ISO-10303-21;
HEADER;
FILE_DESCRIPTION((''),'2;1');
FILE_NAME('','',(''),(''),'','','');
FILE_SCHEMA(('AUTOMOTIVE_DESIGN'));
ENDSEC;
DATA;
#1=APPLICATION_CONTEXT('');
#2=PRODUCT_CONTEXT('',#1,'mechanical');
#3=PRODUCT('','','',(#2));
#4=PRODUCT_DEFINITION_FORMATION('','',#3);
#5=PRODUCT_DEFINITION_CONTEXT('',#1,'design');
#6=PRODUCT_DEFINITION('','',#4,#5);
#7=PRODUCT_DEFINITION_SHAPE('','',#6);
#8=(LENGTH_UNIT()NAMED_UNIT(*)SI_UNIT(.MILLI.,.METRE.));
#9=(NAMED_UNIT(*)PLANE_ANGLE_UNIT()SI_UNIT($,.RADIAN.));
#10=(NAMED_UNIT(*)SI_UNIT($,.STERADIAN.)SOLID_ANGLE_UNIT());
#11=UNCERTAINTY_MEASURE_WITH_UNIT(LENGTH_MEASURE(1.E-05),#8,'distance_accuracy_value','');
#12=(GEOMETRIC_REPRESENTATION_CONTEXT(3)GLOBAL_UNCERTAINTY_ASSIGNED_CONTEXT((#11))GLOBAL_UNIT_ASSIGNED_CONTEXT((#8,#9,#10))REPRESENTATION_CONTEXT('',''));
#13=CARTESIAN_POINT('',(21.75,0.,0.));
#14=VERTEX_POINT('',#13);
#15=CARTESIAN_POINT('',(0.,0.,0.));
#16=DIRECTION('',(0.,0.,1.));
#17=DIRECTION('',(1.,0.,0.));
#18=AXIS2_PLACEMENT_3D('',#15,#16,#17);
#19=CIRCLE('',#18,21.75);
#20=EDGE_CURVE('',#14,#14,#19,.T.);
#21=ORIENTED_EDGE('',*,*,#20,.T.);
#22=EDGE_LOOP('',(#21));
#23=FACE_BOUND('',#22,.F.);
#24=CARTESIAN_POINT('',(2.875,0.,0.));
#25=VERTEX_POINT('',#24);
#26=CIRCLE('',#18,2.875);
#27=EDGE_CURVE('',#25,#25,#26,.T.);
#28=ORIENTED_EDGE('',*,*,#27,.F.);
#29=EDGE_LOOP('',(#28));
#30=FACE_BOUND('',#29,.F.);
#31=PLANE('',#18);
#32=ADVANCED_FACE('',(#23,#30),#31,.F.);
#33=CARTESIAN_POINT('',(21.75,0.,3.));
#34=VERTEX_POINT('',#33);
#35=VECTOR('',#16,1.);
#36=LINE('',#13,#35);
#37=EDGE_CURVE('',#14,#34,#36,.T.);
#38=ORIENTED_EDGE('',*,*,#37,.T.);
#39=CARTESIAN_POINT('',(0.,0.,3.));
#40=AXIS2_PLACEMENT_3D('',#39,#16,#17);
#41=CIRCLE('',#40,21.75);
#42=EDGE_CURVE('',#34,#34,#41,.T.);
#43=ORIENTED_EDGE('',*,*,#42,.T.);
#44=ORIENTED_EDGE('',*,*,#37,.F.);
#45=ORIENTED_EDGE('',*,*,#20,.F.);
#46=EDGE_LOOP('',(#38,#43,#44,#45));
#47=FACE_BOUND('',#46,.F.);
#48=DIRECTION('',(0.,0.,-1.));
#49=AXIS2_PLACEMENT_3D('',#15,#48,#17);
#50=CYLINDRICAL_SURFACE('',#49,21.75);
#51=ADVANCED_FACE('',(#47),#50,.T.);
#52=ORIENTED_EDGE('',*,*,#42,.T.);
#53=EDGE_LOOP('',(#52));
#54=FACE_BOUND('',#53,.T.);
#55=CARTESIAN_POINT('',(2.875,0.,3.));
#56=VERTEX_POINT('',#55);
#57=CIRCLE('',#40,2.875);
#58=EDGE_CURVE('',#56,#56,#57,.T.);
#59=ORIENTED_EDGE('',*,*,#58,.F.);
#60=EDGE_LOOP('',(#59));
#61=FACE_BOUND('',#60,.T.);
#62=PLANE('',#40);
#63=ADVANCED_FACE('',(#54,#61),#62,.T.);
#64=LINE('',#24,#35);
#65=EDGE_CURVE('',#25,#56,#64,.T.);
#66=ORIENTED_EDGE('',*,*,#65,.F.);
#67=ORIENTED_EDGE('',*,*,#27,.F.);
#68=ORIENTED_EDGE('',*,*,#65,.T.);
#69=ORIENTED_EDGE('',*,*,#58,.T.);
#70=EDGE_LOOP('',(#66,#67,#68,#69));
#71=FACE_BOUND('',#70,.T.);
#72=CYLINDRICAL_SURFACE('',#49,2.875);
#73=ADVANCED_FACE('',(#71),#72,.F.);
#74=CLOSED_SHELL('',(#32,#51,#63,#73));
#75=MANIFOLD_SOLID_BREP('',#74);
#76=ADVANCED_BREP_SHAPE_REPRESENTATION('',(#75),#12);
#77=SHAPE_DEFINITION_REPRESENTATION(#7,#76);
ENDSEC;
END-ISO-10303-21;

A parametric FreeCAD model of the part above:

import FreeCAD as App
import Part
import Sketcher

doc = App.newDocument("Part")
body = doc.addObject("PartDesign::Body", "Body")

sketch1 = body.newObject("Sketcher::SketchObject", "Sketch")
sketch1.AttachmentSupport = (doc.getObject("XY_Plane"), [""])
sketch1.MapMode = "FlatFace"
sketch1.addGeometry([
    Part.Circle(App.Vector(0, 0, 0), App.Vector(0, 0, 1), 21.8),
    Part.Circle(App.Vector(0, 0, 0), App.Vector(0, 0, 1), 2.9),
], False)
sketch1.addConstraint([
    Sketcher.Constraint("Coincident", 0, 3, -1, 1),
    Sketcher.Constraint("Coincident", 1, 3, -1, 1),
    Sketcher.Constraint("Diameter", 0, 43.5),
    Sketcher.Constraint("Diameter", 1, 5.75),
])
pad1 = body.newObject("PartDesign::Pad", "Pad")
pad1.Profile = sketch1
pad1.Length = 3

doc.recompute()
